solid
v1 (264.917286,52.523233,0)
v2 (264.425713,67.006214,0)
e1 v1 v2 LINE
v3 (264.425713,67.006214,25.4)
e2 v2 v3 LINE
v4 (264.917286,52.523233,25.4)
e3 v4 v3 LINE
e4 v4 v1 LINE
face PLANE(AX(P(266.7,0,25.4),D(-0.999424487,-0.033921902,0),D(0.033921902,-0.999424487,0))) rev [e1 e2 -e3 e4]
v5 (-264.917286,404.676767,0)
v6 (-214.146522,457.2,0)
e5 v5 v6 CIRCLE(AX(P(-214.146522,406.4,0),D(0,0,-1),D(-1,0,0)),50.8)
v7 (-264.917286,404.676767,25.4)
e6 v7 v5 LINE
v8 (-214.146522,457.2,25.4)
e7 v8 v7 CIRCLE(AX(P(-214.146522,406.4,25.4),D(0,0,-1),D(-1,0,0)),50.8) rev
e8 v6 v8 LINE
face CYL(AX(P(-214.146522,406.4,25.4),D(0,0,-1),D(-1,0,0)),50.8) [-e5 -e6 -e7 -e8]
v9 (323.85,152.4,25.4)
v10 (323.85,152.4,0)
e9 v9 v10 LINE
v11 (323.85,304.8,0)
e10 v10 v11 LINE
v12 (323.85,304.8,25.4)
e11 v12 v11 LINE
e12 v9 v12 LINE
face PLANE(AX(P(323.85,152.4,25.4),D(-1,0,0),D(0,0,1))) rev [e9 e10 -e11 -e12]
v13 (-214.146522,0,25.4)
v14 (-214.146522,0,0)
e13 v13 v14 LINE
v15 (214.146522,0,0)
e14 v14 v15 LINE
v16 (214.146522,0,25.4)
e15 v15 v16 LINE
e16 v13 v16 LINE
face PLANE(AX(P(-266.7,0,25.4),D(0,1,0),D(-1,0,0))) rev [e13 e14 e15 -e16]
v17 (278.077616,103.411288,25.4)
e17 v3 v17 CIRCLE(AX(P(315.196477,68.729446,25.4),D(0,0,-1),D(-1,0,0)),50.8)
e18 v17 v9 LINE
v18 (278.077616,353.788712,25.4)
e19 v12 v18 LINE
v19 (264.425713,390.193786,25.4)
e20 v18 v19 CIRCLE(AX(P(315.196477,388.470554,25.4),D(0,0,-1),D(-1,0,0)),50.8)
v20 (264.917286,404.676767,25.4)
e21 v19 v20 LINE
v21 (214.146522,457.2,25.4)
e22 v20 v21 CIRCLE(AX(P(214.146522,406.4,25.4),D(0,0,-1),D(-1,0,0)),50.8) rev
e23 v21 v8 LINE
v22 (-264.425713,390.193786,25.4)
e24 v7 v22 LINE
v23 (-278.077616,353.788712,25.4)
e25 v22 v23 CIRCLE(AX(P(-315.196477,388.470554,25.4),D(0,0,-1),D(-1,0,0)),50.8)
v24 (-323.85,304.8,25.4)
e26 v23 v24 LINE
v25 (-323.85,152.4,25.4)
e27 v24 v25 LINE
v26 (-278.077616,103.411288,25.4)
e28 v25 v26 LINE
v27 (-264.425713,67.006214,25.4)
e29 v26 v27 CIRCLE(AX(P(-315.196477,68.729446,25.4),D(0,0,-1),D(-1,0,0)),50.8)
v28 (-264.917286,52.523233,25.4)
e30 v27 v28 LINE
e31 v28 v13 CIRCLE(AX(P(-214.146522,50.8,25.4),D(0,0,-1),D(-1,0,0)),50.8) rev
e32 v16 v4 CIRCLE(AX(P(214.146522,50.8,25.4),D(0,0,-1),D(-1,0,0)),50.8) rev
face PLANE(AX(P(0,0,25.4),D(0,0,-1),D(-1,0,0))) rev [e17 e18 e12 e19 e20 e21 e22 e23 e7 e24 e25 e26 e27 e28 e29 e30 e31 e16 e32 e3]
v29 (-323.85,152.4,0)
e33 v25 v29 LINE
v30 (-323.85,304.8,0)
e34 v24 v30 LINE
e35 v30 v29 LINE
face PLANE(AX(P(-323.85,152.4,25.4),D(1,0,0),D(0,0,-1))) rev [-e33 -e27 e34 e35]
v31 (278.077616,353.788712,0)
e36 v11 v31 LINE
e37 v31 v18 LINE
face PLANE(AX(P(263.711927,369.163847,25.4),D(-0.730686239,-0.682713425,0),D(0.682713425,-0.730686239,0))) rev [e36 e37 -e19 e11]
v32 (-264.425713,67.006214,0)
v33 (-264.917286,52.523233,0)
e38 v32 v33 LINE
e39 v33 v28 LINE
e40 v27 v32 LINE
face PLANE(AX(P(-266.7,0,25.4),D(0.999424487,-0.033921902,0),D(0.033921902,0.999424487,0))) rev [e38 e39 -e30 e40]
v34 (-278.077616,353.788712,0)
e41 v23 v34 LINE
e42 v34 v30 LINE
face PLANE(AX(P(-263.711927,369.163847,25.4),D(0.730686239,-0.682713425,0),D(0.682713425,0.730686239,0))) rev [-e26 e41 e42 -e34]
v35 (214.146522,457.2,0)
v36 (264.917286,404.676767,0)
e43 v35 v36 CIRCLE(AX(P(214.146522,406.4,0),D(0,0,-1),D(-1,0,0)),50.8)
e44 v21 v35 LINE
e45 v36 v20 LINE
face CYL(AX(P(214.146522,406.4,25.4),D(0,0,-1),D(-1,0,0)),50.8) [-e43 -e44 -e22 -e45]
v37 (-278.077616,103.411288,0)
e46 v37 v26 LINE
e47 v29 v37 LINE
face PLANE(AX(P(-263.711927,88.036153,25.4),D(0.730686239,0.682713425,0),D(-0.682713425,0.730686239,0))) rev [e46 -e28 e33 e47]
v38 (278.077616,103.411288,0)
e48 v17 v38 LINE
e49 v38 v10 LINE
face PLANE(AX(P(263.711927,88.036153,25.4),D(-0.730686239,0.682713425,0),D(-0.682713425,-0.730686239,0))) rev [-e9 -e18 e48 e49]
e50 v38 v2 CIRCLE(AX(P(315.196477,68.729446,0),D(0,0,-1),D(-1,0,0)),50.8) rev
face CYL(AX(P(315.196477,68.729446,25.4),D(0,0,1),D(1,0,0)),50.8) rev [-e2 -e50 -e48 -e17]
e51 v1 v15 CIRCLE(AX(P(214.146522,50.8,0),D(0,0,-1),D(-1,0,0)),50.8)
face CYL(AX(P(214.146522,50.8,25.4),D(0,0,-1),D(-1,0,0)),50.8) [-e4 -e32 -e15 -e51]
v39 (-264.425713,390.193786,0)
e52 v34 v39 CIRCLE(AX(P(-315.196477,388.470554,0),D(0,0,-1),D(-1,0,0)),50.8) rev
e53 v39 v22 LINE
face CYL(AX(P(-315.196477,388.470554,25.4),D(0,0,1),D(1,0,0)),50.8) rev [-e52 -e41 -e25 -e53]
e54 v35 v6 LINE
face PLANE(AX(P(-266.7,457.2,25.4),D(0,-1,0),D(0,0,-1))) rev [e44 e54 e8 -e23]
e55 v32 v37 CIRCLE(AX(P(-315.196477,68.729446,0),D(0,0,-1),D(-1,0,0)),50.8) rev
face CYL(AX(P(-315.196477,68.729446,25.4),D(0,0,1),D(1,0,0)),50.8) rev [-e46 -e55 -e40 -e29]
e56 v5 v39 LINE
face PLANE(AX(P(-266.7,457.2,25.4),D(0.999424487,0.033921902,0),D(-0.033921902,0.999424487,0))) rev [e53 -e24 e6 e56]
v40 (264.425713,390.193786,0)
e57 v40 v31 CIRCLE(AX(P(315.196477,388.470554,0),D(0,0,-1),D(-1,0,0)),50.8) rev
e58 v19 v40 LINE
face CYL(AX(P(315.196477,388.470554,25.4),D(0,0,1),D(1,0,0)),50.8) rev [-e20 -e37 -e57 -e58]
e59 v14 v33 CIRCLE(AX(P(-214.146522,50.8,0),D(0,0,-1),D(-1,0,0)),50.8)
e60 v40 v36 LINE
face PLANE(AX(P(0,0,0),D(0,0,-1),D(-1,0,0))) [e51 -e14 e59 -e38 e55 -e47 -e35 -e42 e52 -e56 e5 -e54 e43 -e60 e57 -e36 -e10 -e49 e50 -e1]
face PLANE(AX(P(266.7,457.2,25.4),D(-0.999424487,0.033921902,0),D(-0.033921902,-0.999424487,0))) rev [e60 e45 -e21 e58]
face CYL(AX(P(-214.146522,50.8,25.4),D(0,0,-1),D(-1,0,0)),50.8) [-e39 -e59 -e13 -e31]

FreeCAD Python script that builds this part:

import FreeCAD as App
import Part
import Sketcher

V = App.Vector
Q = App.Units.Quantity


def edges_at(feature, points):
    """Names of the edges that pass closest to the given points."""
    edges = feature.Shape.Edges
    near = lambda p: min(range(len(edges)), key=lambda i: edges[i].distToShape(Part.Vertex(*p))[0])
    return sorted({f"Edge{near(p) + 1}" for p in points})


def add_polygon(sketch, points):
    """Adds a closed chain of lines whose ends are joined by coincident constraints."""
    first, n = sketch.GeometryCount, len(points)
    for a, b in zip(points, points[1:] + points[:1]):
        sketch.addGeometry(Part.LineSegment(App.Vector(*a, 0), App.Vector(*b, 0)), False)
    for i in range(n):
        sketch.addConstraint(Sketcher.Constraint("Coincident", first + i, 2, first + (i + 1) % n, 1))

doc = App.newDocument("Part")
body = doc.addObject("PartDesign::Body", "Body")

sketch1 = body.newObject("Sketcher::SketchObject", "Sketch")
sketch1.AttachmentSupport = (doc.getObject("XY_Plane"), [""])
sketch1.MapMode = "FlatFace"
add_polygon(sketch1, [(-267, 0), (267, 0), (264, 88), (324, 152), (324, 305), (264, 369), (267, 457), (-267, 457), (-264, 369), (-324, 305), (-324, 152), (-264, 88)])
sketch1.addConstraint([
    Sketcher.Constraint("Horizontal", 0),
    Sketcher.Constraint("Vertical", 3),
    Sketcher.Constraint("Horizontal", 6),
    Sketcher.Constraint("Vertical", 9),
    Sketcher.Constraint("Symmetric", 0, 2, 11, 2, -1, 1),
    Sketcher.Constraint("Symmetric", 4, 2, 7, 2, -2),
    Sketcher.Constraint("Symmetric", 3, 2, 8, 2, -2),
    Sketcher.Constraint("Symmetric", 1, 2, 10, 2, -2),
    Sketcher.Constraint("Parallel", 1, 7),
    Sketcher.Constraint("Parallel", 2, 8),
    Sketcher.Constraint("Parallel", 4, 10),
    Sketcher.Constraint("Parallel", 5, 11),
    Sketcher.Constraint("Vertical", 1, 2, 4, 2),
    Sketcher.Constraint("Vertical", 0, 2, 5, 2),
    Sketcher.Constraint("Equal", 1, 2),
    Sketcher.Constraint("DistanceX", 0, 1, 0, 2, Q("21 in")),
    Sketcher.Constraint("DistanceY", 3, 1, 3, 2, Q("6 in")),
    Sketcher.Constraint("DistanceY", -1, 1, 2, 2, Q("6 in")),
    Sketcher.Constraint("DistanceX", -1, 1, 2, 2, Q("12.75 in")),
    Sketcher.Constraint("Distance", 1, 88.086848),
])
pad1 = body.newObject("PartDesign::Pad", "Pad")
pad1.Profile = sketch1
pad1.Length = Q("1 in")
doc.recompute()

fillet = body.newObject("PartDesign::Fillet", "Fillet")
fillet.Base = (pad1, edges_at(pad1, [
    (266.7, 0, 12.7),
    (-266.7, 0, 12.7),
    (-263.712, 88.036, 12.7),
    (-263.712, 369.164, 12.7),
    (-266.7, 457.2, 12.7),
    (266.7, 457.2, 12.7),
    (263.712, 369.164, 12.7),
    (263.712, 88.036, 12.7),
]))
fillet.Radius = Q("2 in")

doc.recompute()
